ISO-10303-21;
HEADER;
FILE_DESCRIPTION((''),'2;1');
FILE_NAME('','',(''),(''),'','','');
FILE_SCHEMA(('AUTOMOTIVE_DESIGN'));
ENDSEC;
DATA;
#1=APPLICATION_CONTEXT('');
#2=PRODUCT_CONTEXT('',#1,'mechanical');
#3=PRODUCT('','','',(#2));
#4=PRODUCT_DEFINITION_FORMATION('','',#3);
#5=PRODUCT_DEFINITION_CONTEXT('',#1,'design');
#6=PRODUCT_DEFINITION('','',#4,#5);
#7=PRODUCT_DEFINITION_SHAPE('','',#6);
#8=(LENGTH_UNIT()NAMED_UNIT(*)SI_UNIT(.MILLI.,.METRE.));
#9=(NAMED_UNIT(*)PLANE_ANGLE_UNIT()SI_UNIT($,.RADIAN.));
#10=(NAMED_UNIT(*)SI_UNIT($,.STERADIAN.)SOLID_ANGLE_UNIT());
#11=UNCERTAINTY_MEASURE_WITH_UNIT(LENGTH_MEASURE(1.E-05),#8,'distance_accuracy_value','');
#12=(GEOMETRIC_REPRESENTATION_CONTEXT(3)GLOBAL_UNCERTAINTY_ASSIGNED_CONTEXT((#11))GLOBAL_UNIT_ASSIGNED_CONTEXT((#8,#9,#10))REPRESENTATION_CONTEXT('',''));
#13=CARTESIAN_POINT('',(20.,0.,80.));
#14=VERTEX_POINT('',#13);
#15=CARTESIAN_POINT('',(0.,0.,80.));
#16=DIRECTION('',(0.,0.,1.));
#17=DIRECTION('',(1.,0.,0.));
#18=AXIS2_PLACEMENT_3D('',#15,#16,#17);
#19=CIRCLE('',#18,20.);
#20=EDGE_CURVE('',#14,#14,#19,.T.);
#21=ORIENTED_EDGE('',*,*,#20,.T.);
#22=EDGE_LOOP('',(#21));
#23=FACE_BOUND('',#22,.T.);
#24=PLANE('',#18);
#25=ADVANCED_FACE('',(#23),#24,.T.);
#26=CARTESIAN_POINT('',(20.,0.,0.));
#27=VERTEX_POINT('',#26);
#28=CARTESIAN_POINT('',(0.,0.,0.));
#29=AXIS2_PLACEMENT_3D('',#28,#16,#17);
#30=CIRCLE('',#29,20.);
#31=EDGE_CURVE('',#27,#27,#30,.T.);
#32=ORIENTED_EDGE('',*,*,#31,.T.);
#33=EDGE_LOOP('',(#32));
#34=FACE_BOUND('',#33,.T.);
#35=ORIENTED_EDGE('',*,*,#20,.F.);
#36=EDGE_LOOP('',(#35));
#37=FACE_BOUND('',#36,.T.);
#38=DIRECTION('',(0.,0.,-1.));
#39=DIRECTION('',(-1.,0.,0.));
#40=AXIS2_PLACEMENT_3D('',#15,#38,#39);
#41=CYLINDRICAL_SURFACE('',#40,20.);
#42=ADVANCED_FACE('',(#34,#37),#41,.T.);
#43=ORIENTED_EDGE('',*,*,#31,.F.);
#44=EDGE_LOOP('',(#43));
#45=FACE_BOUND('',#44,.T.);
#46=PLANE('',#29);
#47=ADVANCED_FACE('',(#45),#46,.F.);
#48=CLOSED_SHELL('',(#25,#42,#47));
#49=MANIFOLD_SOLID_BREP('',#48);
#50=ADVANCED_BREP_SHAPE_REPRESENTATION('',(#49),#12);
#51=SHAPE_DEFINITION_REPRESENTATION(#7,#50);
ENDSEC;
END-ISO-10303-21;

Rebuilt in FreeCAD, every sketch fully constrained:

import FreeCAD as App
import Part
import Sketcher

V = App.Vector
Q = App.Units.Quantity

doc = App.newDocument("Part")
params = doc.addObject("Spreadsheet::Sheet", "Params")
for row, (alias, value) in enumerate([
    ("sketch1_diameter", "40 mm"),
    ("pad1_length", "80 mm"),
], start=1):
    params.set(f"A{row}", alias)
    params.set(f"B{row}", "=" + value)
    params.setAlias(f"B{row}", alias)

body = doc.addObject("PartDesign::Body", "Body")

# Sketch on XY plane
sketch1 = doc.addObject("Sketcher::SketchObject", "Sketch")
body.addObject(sketch1)
sketch1.AttachmentSupport = (doc.XY_Plane, [""])
sketch1.MapMode = "FlatFace"
sketch1.addGeometry(Part.Circle(V(0, 0, 0), V(0, 0, 1), 20), False)
sketch1.addConstraint([
    Sketcher.Constraint("Coincident", 0, 3, -1, 1),
    Sketcher.Constraint("Diameter", 0, Q("40 mm")),
])
sketch1.setExpression("Constraints[1]", "Params.sketch1_diameter")
pad1 = doc.addObject("PartDesign::Pad", "Pad")
body.addObject(pad1)
pad1.Profile = sketch1
pad1.setExpression("Length", "Params.pad1_length")

doc.recompute()
